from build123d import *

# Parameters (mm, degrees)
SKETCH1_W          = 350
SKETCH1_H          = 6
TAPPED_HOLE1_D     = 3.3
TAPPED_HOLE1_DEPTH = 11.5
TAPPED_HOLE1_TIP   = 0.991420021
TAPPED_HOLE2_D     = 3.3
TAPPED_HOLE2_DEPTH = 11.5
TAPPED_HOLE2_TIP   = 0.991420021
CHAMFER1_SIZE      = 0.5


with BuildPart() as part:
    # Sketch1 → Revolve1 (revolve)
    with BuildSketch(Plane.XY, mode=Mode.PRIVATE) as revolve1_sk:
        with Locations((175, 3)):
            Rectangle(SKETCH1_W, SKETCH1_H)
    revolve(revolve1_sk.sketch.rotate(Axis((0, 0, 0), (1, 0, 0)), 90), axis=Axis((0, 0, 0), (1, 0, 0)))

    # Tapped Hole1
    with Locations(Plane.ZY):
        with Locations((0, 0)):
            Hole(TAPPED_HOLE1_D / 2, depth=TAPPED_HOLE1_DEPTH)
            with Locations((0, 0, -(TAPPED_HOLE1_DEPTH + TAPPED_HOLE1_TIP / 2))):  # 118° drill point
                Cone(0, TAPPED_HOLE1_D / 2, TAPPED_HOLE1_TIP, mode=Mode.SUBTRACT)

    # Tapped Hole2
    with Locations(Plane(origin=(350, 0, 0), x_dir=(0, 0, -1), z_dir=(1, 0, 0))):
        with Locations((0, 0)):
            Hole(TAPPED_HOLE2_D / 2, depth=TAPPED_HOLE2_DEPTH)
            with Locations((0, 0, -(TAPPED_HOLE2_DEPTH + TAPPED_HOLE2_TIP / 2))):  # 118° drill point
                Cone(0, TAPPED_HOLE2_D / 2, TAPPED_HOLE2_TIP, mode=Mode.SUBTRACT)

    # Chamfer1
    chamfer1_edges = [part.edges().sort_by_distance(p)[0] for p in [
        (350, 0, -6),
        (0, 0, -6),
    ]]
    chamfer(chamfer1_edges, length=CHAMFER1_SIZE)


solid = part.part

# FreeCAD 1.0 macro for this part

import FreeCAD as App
import Part
import Sketcher
Q = App.Units.Quantity


def edges_at(feature, points):
    """Names of the edges that pass closest to the given points."""
    edges = feature.Shape.Edges
    near = lambda p: min(range(len(edges)), key=lambda i: edges[i].distToShape(Part.Vertex(*p))[0])
    return sorted({f"Edge{near(p) + 1}" for p in points})

doc = App.newDocument("Part")
body = doc.addObject("PartDesign::Body", "Body")

# Sketch on XY plane
sketch1 = doc.addObject("Sketcher::SketchObject", "Sketch")
body.addObject(sketch1)
sketch1.AttachmentSupport = (doc.XY_Plane, [""])
sketch1.MapMode = "FlatFace"
sketch1.addGeometry([
    Part.LineSegment(App.Vector(0, 6, 0), App.Vector(0, 0, 0)),
    Part.LineSegment(App.Vector(0, 0, 0), App.Vector(350, 0, 0)),
    Part.LineSegment(App.Vector(350, 0, 0), App.Vector(350, 6, 0)),
    Part.LineSegment(App.Vector(350, 6, 0), App.Vector(0, 6, 0)),
], False)
sketch1.addConstraint([
    Sketcher.Constraint("Coincident", 0, 2, 1, 1),
    Sketcher.Constraint("Coincident", 1, 2, 2, 1),
    Sketcher.Constraint("Coincident", 2, 2, 3, 1),
    Sketcher.Constraint("Coincident", 3, 2, 0, 1),
    Sketcher.Constraint("Vertical", 0),
    Sketcher.Constraint("Horizontal", 1),
    Sketcher.Constraint("Vertical", 2),
    Sketcher.Constraint("Horizontal", 3),
    Sketcher.Constraint("Coincident", 0, 2, -1, 1),
    Sketcher.Constraint("DistanceX", 1, 1, 1, 2, Q("350 mm")),
    Sketcher.Constraint("DistanceY", 0, 2, 0, 1, Q("6 mm")),
])
revolution = doc.addObject("PartDesign::Revolution", "Revolution")
body.addObject(revolution)
revolution.Profile = sketch1
revolution.ReferenceAxis = (sketch1, ["H_Axis"])
revolution.Angle = 360

# Sketch on YZ plane
sketch2 = doc.addObject("Sketcher::SketchObject", "Sketch001")
body.addObject(sketch2)
sketch2.AttachmentSupport = (doc.YZ_Plane, [""])
sketch2.MapMode = "FlatFace"
sketch2.addGeometry(Part.Circle(App.Vector(0, 0, 0), App.Vector(0, 0, 1), 1.6), False)
sketch2.addConstraint([
    Sketcher.Constraint("Coincident", 0, 3, -1, 1),
    Sketcher.Constraint("Diameter", 0, Q("3.3 mm")),
])
doc.recompute()
hole = doc.addObject("PartDesign::Hole", "Hole")
body.addObject(hole)
hole.Profile = sketch2
hole.ThreadType = "None"
hole.Diameter = 3.3
hole.DepthType = "Dimension"
hole.Depth = 11.5
hole.DrillPoint = "Angled"
hole.DrillPointAngle = 118
hole.Reversed = True

# Sketch on YZ plane
sketch3 = doc.addObject("Sketcher::SketchObject", "Sketch002")
body.addObject(sketch3)
sketch3.AttachmentSupport = (doc.YZ_Plane, [""])
sketch3.MapMode = "FlatFace"
sketch3.AttachmentOffset = App.Placement(App.Vector(0, 0, 350), App.Rotation())
sketch3.addGeometry(Part.Circle(App.Vector(0, 0, 0), App.Vector(0, 0, 1), 1.6), False)
sketch3.addConstraint([
    Sketcher.Constraint("Coincident", 0, 3, -1, 1),
    Sketcher.Constraint("Diameter", 0, Q("3.3 mm")),
])
doc.recompute()
hole2 = doc.addObject("PartDesign::Hole", "Hole001")
body.addObject(hole2)
hole2.Profile = sketch3
hole2.ThreadType = "None"
hole2.Diameter = 3.3
hole2.DepthType = "Dimension"
hole2.Depth = 11.5
hole2.DrillPoint = "Angled"
hole2.DrillPointAngle = 118
doc.recompute()

chamfer = doc.addObject("PartDesign::Chamfer", "Chamfer")
body.addObject(chamfer)
chamfer.Base = (hole2, edges_at(hole2, [(350, 0, -6), (0, 0, -6)]))
chamfer.Size = 0.5

doc.recompute()
